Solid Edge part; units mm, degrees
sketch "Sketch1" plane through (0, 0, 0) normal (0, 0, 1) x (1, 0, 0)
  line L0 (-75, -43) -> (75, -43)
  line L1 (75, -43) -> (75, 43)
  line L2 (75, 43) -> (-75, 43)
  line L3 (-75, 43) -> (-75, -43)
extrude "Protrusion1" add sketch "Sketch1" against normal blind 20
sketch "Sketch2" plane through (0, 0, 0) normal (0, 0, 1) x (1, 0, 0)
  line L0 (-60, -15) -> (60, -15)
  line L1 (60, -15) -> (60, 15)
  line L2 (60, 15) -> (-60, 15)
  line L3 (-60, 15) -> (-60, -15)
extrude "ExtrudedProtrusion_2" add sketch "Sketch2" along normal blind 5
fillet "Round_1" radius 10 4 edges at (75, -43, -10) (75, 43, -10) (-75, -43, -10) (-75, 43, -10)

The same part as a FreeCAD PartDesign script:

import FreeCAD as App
import Part
import Sketcher

V = App.Vector


def edges_at(feature, points):
    """Names of the edges that pass closest to the given points."""
    edges = feature.Shape.Edges
    near = lambda p: min(range(len(edges)), key=lambda i: edges[i].distToShape(Part.Vertex(*p))[0])
    return sorted({f"Edge{near(p) + 1}" for p in points})

doc = App.newDocument("Part")
body = doc.addObject("PartDesign::Body", "Body")

# Sketch on XY plane
sketch1 = body.newObject("Sketcher::SketchObject", "Sketch")
sketch1.AttachmentSupport = (doc.getObject("XY_Plane"), [""])
sketch1.MapMode = "FlatFace"
sketch1.addGeometry(Part.LineSegment(V(-75, 43, 0), V(-75, -43, 0)), False)
sketch1.addGeometry(Part.LineSegment(V(-75, -43, 0), V(75, -43, 0)), False)
sketch1.addGeometry(Part.LineSegment(V(75, -43, 0), V(75, 43, 0)), False)
sketch1.addGeometry(Part.LineSegment(V(75, 43, 0), V(-75, 43, 0)), False)
sketch1.addConstraint(Sketcher.Constraint("Coincident", 0, 2, 1, 1))
sketch1.addConstraint(Sketcher.Constraint("Coincident", 1, 2, 2, 1))
sketch1.addConstraint(Sketcher.Constraint("Coincident", 2, 2, 3, 1))
sketch1.addConstraint(Sketcher.Constraint("Coincident", 3, 2, 0, 1))
sketch1.addConstraint(Sketcher.Constraint("Vertical", 0))
sketch1.addConstraint(Sketcher.Constraint("Horizontal", 1))
sketch1.addConstraint(Sketcher.Constraint("Vertical", 2))
sketch1.addConstraint(Sketcher.Constraint("Horizontal", 3))
sketch1.addConstraint(Sketcher.Constraint("Symmetric", 0, 2, 2, 2, -1, 1))
sketch1.addConstraint(Sketcher.Constraint("DistanceX", 1, 1, 1, 2, 150.0))
sketch1.addConstraint(Sketcher.Constraint("DistanceY", 0, 2, 0, 1, 86.0))
pad1 = body.newObject("PartDesign::Pad", "Pad")
pad1.Profile = sketch1
pad1.Length = 20
pad1.Reversed = True

# Sketch on XY plane
sketch2 = body.newObject("Sketcher::SketchObject", "Sketch001")
sketch2.AttachmentSupport = (doc.getObject("XY_Plane"), [""])
sketch2.MapMode = "FlatFace"
sketch2.addGeometry(Part.LineSegment(V(-60, 15, 0), V(-60, -15, 0)), False)
sketch2.addGeometry(Part.LineSegment(V(-60, -15, 0), V(60, -15, 0)), False)
sketch2.addGeometry(Part.LineSegment(V(60, -15, 0), V(60, 15, 0)), False)
sketch2.addGeometry(Part.LineSegment(V(60, 15, 0), V(-60, 15, 0)), False)
sketch2.addConstraint(Sketcher.Constraint("Coincident", 0, 2, 1, 1))
sketch2.addConstraint(Sketcher.Constraint("Coincident", 1, 2, 2, 1))
sketch2.addConstraint(Sketcher.Constraint("Coincident", 2, 2, 3, 1))
sketch2.addConstraint(Sketcher.Constraint("Coincident", 3, 2, 0, 1))
sketch2.addConstraint(Sketcher.Constraint("Vertical", 0))
sketch2.addConstraint(Sketcher.Constraint("Horizontal", 1))
sketch2.addConstraint(Sketcher.Constraint("Vertical", 2))
sketch2.addConstraint(Sketcher.Constraint("Horizontal", 3))
sketch2.addConstraint(Sketcher.Constraint("Symmetric", 0, 2, 2, 2, -1, 1))
sketch2.addConstraint(Sketcher.Constraint("DistanceX", 1, 1, 1, 2, 120.0))
sketch2.addConstraint(Sketcher.Constraint("DistanceY", 0, 2, 0, 1, 30.0))
pad2 = body.newObject("PartDesign::Pad", "Pad001")
pad2.Profile = sketch2
pad2.Length = 5
doc.recompute()

fillet = body.newObject("PartDesign::Fillet", "Fillet")
fillet.Base = (pad2, edges_at(pad2, [
    (75, -43, -10),
    (75, 43, -10),
    (-75, -43, -10),
    (-75, 43, -10),
]))
fillet.Radius = 10

doc.recompute()
